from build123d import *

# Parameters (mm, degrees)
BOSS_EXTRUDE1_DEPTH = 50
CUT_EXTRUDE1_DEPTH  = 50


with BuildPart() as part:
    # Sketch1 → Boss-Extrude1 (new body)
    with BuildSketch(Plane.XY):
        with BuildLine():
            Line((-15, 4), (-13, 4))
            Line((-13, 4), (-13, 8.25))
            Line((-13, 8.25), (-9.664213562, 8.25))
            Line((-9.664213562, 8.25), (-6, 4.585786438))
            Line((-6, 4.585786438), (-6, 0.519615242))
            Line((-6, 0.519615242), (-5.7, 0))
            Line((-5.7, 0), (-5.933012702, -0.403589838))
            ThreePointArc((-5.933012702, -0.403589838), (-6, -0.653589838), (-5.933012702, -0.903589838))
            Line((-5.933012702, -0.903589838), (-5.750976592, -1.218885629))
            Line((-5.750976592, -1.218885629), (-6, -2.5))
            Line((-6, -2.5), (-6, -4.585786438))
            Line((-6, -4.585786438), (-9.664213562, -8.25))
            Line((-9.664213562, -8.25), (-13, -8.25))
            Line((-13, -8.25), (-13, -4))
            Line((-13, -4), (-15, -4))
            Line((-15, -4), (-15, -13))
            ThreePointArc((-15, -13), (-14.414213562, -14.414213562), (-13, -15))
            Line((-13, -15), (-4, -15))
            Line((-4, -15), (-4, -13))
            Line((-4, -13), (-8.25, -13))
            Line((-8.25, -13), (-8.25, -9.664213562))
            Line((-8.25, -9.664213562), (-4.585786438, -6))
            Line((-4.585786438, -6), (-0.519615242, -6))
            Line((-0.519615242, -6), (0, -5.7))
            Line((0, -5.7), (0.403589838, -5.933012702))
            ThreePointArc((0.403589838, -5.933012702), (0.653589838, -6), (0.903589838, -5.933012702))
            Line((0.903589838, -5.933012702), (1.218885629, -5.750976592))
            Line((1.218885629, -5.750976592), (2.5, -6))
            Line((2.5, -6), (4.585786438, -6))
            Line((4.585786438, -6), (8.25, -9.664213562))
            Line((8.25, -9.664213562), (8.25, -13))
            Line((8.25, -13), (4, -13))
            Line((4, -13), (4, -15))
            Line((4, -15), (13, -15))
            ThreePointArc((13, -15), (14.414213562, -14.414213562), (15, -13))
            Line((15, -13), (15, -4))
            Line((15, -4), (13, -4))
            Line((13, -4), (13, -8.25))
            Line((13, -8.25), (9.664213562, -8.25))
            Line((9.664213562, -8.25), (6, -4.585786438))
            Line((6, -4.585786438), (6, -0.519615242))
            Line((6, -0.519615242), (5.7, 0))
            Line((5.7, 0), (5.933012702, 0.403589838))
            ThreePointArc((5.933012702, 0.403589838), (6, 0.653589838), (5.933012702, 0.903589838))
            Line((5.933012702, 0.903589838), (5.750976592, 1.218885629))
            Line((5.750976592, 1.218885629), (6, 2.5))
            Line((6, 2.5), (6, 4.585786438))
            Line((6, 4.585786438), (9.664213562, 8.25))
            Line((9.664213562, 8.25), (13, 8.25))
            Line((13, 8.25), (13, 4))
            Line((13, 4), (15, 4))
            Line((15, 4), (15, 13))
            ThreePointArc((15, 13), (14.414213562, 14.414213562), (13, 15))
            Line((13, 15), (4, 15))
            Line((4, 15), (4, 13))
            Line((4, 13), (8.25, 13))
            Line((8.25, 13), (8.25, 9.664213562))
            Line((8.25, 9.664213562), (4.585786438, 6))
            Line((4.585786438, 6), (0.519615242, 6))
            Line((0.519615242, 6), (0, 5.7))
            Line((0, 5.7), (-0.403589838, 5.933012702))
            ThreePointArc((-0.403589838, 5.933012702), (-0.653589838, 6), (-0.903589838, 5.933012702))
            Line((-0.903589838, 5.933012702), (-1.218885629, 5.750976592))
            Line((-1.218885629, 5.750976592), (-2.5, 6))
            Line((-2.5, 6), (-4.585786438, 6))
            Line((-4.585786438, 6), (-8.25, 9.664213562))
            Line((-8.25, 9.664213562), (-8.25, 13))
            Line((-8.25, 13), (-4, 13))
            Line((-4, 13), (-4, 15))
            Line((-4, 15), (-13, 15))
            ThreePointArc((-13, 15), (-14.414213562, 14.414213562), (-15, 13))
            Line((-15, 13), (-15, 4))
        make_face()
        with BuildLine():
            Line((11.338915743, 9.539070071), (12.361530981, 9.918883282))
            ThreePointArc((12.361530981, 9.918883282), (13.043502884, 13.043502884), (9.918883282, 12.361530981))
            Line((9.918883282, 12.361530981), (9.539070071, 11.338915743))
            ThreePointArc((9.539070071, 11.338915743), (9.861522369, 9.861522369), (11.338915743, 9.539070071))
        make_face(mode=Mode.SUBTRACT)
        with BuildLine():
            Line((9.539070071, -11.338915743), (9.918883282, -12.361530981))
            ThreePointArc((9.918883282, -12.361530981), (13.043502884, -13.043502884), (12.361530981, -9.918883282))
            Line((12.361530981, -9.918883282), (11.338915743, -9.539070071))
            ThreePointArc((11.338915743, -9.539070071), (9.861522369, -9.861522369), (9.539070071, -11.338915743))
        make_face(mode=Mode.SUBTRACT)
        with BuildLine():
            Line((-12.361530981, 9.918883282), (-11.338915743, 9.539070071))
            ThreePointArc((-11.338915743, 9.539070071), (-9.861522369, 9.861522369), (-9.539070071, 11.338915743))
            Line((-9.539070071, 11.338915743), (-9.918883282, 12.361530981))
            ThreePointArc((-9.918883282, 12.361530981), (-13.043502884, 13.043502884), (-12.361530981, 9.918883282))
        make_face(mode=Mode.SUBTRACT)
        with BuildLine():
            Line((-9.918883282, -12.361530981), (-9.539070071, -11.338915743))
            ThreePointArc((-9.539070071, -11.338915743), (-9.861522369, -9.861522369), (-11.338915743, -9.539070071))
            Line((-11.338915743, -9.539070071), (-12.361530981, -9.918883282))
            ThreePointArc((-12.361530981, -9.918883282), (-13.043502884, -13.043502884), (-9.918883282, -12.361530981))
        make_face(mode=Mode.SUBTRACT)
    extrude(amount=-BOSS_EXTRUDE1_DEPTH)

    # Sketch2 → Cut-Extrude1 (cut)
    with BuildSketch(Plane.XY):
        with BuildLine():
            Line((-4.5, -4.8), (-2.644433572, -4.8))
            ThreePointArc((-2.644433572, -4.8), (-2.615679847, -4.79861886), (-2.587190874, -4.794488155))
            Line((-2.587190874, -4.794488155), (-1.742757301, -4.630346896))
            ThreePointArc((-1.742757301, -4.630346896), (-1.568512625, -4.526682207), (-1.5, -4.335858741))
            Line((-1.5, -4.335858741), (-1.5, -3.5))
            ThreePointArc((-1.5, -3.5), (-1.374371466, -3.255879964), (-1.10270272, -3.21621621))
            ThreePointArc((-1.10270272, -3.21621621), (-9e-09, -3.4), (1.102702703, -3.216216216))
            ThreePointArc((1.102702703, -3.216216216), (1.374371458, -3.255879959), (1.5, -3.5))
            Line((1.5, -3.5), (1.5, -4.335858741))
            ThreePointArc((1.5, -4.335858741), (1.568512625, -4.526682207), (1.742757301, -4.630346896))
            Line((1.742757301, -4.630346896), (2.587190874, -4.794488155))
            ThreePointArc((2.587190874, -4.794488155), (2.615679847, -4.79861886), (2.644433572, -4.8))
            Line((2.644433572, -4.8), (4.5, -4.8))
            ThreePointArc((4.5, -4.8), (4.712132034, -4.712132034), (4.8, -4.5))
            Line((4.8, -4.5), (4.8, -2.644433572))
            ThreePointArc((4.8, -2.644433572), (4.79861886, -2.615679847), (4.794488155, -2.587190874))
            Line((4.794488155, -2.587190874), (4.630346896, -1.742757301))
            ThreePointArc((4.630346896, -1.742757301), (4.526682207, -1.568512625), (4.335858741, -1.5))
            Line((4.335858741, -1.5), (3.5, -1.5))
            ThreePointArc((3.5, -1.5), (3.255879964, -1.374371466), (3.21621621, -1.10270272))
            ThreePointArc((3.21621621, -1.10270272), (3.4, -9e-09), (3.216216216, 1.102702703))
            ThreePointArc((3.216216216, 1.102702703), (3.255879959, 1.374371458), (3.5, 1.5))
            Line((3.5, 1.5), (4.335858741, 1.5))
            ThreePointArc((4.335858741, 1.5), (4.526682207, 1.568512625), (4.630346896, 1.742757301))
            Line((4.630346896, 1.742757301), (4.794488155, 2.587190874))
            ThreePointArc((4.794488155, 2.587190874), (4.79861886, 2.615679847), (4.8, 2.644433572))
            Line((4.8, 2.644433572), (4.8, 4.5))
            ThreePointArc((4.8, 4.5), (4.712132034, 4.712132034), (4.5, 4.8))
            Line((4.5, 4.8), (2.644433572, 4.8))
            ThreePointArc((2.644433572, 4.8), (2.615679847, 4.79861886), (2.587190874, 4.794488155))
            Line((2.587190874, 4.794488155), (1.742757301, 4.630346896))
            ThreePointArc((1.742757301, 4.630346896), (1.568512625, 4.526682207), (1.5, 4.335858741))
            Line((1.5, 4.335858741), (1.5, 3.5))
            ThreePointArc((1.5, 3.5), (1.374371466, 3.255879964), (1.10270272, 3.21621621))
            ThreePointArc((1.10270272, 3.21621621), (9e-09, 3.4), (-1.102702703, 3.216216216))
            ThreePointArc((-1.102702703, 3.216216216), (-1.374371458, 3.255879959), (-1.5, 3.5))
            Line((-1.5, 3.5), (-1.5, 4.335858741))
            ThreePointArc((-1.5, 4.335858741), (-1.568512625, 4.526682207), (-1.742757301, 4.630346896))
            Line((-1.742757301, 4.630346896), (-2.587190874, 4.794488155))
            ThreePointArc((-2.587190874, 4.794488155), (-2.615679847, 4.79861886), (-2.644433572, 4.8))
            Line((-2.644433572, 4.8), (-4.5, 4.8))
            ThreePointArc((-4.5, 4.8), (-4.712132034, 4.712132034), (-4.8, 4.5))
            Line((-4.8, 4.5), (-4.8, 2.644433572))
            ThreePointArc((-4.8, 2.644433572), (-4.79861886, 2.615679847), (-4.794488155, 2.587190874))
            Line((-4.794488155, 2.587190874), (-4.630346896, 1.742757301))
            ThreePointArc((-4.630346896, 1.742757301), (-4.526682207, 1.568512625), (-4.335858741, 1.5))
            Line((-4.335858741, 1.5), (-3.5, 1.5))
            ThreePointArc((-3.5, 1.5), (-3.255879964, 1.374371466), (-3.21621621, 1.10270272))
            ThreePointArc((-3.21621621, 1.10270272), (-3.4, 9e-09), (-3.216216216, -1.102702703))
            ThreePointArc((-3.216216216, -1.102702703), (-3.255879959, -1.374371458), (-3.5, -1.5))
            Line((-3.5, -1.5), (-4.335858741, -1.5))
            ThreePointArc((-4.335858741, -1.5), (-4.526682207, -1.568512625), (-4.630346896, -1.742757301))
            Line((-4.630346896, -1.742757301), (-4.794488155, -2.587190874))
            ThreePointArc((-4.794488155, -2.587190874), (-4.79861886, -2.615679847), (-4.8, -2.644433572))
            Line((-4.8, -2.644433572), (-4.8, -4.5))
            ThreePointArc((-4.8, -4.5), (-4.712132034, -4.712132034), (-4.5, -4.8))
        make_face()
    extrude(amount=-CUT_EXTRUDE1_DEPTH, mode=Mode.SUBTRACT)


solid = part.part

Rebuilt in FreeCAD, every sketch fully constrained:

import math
import FreeCAD as App
import Part
import Sketcher

V = App.Vector
Q = App.Units.Quantity

doc = App.newDocument("Part")
body = doc.addObject("PartDesign::Body", "Body")

# Sketch on XY plane
sketch1 = doc.addObject("Sketcher::SketchObject", "Sketch")
body.addObject(sketch1)
sketch1.AttachmentSupport = (doc.XY_Plane, [""])
sketch1.MapMode = "FlatFace"
sketch1.addGeometry([
    Part.LineSegment(V(-15, 4, 0), V(-13, 4, 0)),  # 0
    Part.LineSegment(V(-13, 4, 0), V(-13, 8.25, 0)),  # 1
    Part.LineSegment(V(-13, 8.25, 0), V(-9.66, 8.25, 0)),  # 2
    Part.LineSegment(V(-9.66, 8.25, 0), V(-6, 4.59, 0)),  # 3
    Part.LineSegment(V(-6, 4.59, 0), V(-6, 0.52, 0)),  # 4
    Part.LineSegment(V(-6, 0.52, 0), V(-5.7, 0, 0)),  # 5
    Part.LineSegment(V(-5.7, 0, 0), V(-5.93, -0.4, 0)),  # 6
    Part.ArcOfCircle(Part.Circle(V(-5.5, -0.65, 0), V(0, 0, 1), 0.5), math.radians(150), math.radians(210)),  # 7
    Part.LineSegment(V(-5.93, -0.9, 0), V(-5.75, -1.22, 0)),  # 8
    Part.LineSegment(V(-5.75, -1.22, 0), V(-6, -2.5, 0)),  # 9
    Part.LineSegment(V(-6, -2.5, 0), V(-6, -4.59, 0)),  # 10
    Part.LineSegment(V(-6, -4.59, 0), V(-9.66, -8.25, 0)),  # 11
    Part.LineSegment(V(-9.66, -8.25, 0), V(-13, -8.25, 0)),  # 12
    Part.LineSegment(V(-13, -8.25, 0), V(-13, -4, 0)),  # 13
    Part.LineSegment(V(-13, -4, 0), V(-15, -4, 0)),  # 14
    Part.LineSegment(V(-15, -4, 0), V(-15, -13, 0)),  # 15
    Part.ArcOfCircle(Part.Circle(V(-13, -13, 0), V(0, 0, 1), 2), math.radians(-180), math.radians(-90)),  # 16
    Part.LineSegment(V(-13, -15, 0), V(-4, -15, 0)),  # 17
    Part.LineSegment(V(-4, -15, 0), V(-4, -13, 0)),  # 18
    Part.LineSegment(V(-4, -13, 0), V(-8.25, -13, 0)),  # 19
    Part.LineSegment(V(-8.25, -13, 0), V(-8.25, -9.66, 0)),  # 20
    Part.LineSegment(V(-8.25, -9.66, 0), V(-4.59, -6, 0)),  # 21
    Part.LineSegment(V(-4.59, -6, 0), V(-0.52, -6, 0)),  # 22
    Part.LineSegment(V(-0.52, -6, 0), V(0, -5.7, 0)),  # 23
    Part.LineSegment(V(0, -5.7, 0), V(0.4, -5.93, 0)),  # 24
    Part.ArcOfCircle(Part.Circle(V(0.65, -5.5, 0), V(0, 0, 1), 0.5), math.radians(-120), math.radians(-60)),  # 25
    Part.LineSegment(V(0.9, -5.93, 0), V(1.22, -5.75, 0)),  # 26
    Part.LineSegment(V(1.22, -5.75, 0), V(2.5, -6, 0)),  # 27
    Part.LineSegment(V(2.5, -6, 0), V(4.59, -6, 0)),  # 28
    Part.LineSegment(V(4.59, -6, 0), V(8.25, -9.66, 0)),  # 29
    Part.LineSegment(V(8.25, -9.66, 0), V(8.25, -13, 0)),  # 30
    Part.LineSegment(V(8.25, -13, 0), V(4, -13, 0)),  # 31
    Part.LineSegment(V(4, -13, 0), V(4, -15, 0)),  # 32
    Part.LineSegment(V(4, -15, 0), V(13, -15, 0)),  # 33
    Part.ArcOfCircle(Part.Circle(V(13, -13, 0), V(0, 0, 1), 2), math.radians(-90), math.radians(0)),  # 34
    Part.LineSegment(V(15, -13, 0), V(15, -4, 0)),  # 35
    Part.LineSegment(V(15, -4, 0), V(13, -4, 0)),  # 36
    Part.LineSegment(V(13, -4, 0), V(13, -8.25, 0)),  # 37
    Part.LineSegment(V(13, -8.25, 0), V(9.66, -8.25, 0)),  # 38
    Part.LineSegment(V(9.66, -8.25, 0), V(6, -4.59, 0)),  # 39
    Part.LineSegment(V(6, -4.59, 0), V(6, -0.52, 0)),  # 40
    Part.LineSegment(V(6, -0.52, 0), V(5.7, 0, 0)),  # 41
    Part.LineSegment(V(5.7, 0, 0), V(5.93, 0.4, 0)),  # 42
    Part.ArcOfCircle(Part.Circle(V(5.5, 0.65, 0), V(0, 0, 1), 0.5), math.radians(-30), math.radians(30)),  # 43
    Part.LineSegment(V(5.93, 0.9, 0), V(5.75, 1.22, 0)),  # 44
    Part.LineSegment(V(5.75, 1.22, 0), V(6, 2.5, 0)),  # 45
    Part.LineSegment(V(6, 2.5, 0), V(6, 4.59, 0)),  # 46
    Part.LineSegment(V(6, 4.59, 0), V(9.66, 8.25, 0)),  # 47
    Part.LineSegment(V(9.66, 8.25, 0), V(13, 8.25, 0)),  # 48
    Part.LineSegment(V(13, 8.25, 0), V(13, 4, 0)),  # 49
    Part.LineSegment(V(13, 4, 0), V(15, 4, 0)),  # 50
    Part.LineSegment(V(15, 4, 0), V(15, 13, 0)),  # 51
    Part.ArcOfCircle(Part.Circle(V(13, 13, 0), V(0, 0, 1), 2), math.radians(0), math.radians(90)),  # 52
    Part.LineSegment(V(13, 15, 0), V(4, 15, 0)),  # 53
    Part.LineSegment(V(4, 15, 0), V(4, 13, 0)),  # 54
    Part.LineSegment(V(4, 13, 0), V(8.25, 13, 0)),  # 55
    Part.LineSegment(V(8.25, 13, 0), V(8.25, 9.66, 0)),  # 56
    Part.LineSegment(V(8.25, 9.66, 0), V(4.59, 6, 0)),  # 57
    Part.LineSegment(V(4.59, 6, 0), V(0.52, 6, 0)),  # 58
    Part.LineSegment(V(0.52, 6, 0), V(0, 5.7, 0)),  # 59
    Part.LineSegment(V(0, 5.7, 0), V(-0.4, 5.93, 0)),  # 60
    Part.ArcOfCircle(Part.Circle(V(-0.65, 5.5, 0), V(0, 0, 1), 0.5), math.radians(60), math.radians(120)),  # 61
    Part.LineSegment(V(-0.9, 5.93, 0), V(-1.22, 5.75, 0)),  # 62
    Part.LineSegment(V(-1.22, 5.75, 0), V(-2.5, 6, 0)),  # 63
    Part.LineSegment(V(-2.5, 6, 0), V(-4.59, 6, 0)),  # 64
    Part.LineSegment(V(-4.59, 6, 0), V(-8.25, 9.66, 0)),  # 65
    Part.LineSegment(V(-8.25, 9.66, 0), V(-8.25, 13, 0)),  # 66
    Part.LineSegment(V(-8.25, 13, 0), V(-4, 13, 0)),  # 67
    Part.LineSegment(V(-4, 13, 0), V(-4, 15, 0)),  # 68
    Part.LineSegment(V(-4, 15, 0), V(-13, 15, 0)),  # 69
    Part.ArcOfCircle(Part.Circle(V(-13, 13, 0), V(0, 0, 1), 2), math.radians(90), math.radians(180)),  # 70
    Part.LineSegment(V(-15, 13, 0), V(-15, 4, 0)),  # 71
    Part.LineSegment(V(-9.54, -11.34, 0), V(-9.92, -12.36, 0)),  # 72
    Part.ArcOfCircle(Part.Circle(V(-11.7, -11.7, 0), V(0, 0, 1), 1.9), math.radians(110), math.radians(340)),  # 73
    Part.LineSegment(V(-12.36, -9.92, 0), V(-11.34, -9.54, 0)),  # 74
    Part.ArcOfCircle(Part.Circle(V(-10.85, -10.85, 0), V(0, 0, 1), 1.4), math.radians(-20), math.radians(110)),  # 75
    Part.LineSegment(V(9.92, -12.36, 0), V(9.54, -11.34, 0)),  # 76
    Part.ArcOfCircle(Part.Circle(V(10.85, -10.85, 0), V(0, 0, 1), 1.4), math.radians(70), math.radians(200)),  # 77
    Part.LineSegment(V(11.34, -9.54, 0), V(12.36, -9.92, 0)),  # 78
    Part.ArcOfCircle(Part.Circle(V(11.7, -11.7, 0), V(0, 0, 1), 1.9), math.radians(-160), math.radians(70)),  # 79
    Part.LineSegment(V(-11.34, 9.54, 0), V(-12.36, 9.92, 0)),  # 80
    Part.ArcOfCircle(Part.Circle(V(-11.7, 11.7, 0), V(0, 0, 1), 1.9), math.radians(20), math.radians(250)),  # 81
    Part.LineSegment(V(-9.92, 12.36, 0), V(-9.54, 11.34, 0)),  # 82
    Part.ArcOfCircle(Part.Circle(V(-10.85, 10.85, 0), V(0, 0, 1), 1.4), math.radians(-110), math.radians(20)),  # 83
    Part.LineSegment(V(12.36, 9.92, 0), V(11.34, 9.54, 0)),  # 84
    Part.ArcOfCircle(Part.Circle(V(10.85, 10.85, 0), V(0, 0, 1), 1.4), math.radians(160), math.radians(290)),  # 85
    Part.LineSegment(V(9.54, 11.34, 0), V(9.92, 12.36, 0)),  # 86
    Part.ArcOfCircle(Part.Circle(V(11.7, 11.7, 0), V(0, 0, 1), 1.9), math.radians(-70), math.radians(160)),  # 87
], False)
sketch1.addConstraint([
    Sketcher.Constraint("Coincident", 0, 2, 1, 1),
    Sketcher.Constraint("Coincident", 1, 2, 2, 1),
    Sketcher.Constraint("Coincident", 2, 2, 3, 1),
    Sketcher.Constraint("Coincident", 3, 2, 4, 1),
    Sketcher.Constraint("Coincident", 4, 2, 5, 1),
    Sketcher.Constraint("Coincident", 5, 2, 6, 1),
    Sketcher.Constraint("Tangent", 6, 2, 7, 1),
    Sketcher.Constraint("Tangent", 7, 2, 8, 1),
    Sketcher.Constraint("Coincident", 8, 2, 9, 1),
    Sketcher.Constraint("Coincident", 9, 2, 10, 1),
    Sketcher.Constraint("Coincident", 10, 2, 11, 1),
    Sketcher.Constraint("Coincident", 11, 2, 12, 1),
    Sketcher.Constraint("Coincident", 12, 2, 13, 1),
    Sketcher.Constraint("Coincident", 13, 2, 14, 1),
    Sketcher.Constraint("Coincident", 14, 2, 15, 1),
    Sketcher.Constraint("Tangent", 15, 2, 16, 1),
    Sketcher.Constraint("Tangent", 16, 2, 17, 1),
    Sketcher.Constraint("Coincident", 17, 2, 18, 1),
    Sketcher.Constraint("Coincident", 18, 2, 19, 1),
    Sketcher.Constraint("Coincident", 19, 2, 20, 1),
    Sketcher.Constraint("Coincident", 20, 2, 21, 1),
    Sketcher.Constraint("Coincident", 21, 2, 22, 1),
    Sketcher.Constraint("Coincident", 22, 2, 23, 1),
    Sketcher.Constraint("Coincident", 23, 2, 24, 1),
    Sketcher.Constraint("Tangent", 24, 2, 25, 1),
    Sketcher.Constraint("Tangent", 25, 2, 26, 1),
    Sketcher.Constraint("Coincident", 26, 2, 27, 1),
    Sketcher.Constraint("Coincident", 27, 2, 28, 1),
    Sketcher.Constraint("Coincident", 28, 2, 29, 1),
    Sketcher.Constraint("Coincident", 29, 2, 30, 1),
    Sketcher.Constraint("Coincident", 30, 2, 31, 1),
    Sketcher.Constraint("Coincident", 31, 2, 32, 1),
    Sketcher.Constraint("Coincident", 32, 2, 33, 1),
    Sketcher.Constraint("Tangent", 33, 2, 34, 1),
    Sketcher.Constraint("Tangent", 34, 2, 35, 1),
    Sketcher.Constraint("Coincident", 35, 2, 36, 1),
    Sketcher.Constraint("Coincident", 36, 2, 37, 1),
    Sketcher.Constraint("Coincident", 37, 2, 38, 1),
    Sketcher.Constraint("Coincident", 38, 2, 39, 1),
    Sketcher.Constraint("Coincident", 39, 2, 40, 1),
    Sketcher.Constraint("Coincident", 40, 2, 41, 1),
    Sketcher.Constraint("Coincident", 41, 2, 42, 1),
    Sketcher.Constraint("Tangent", 42, 2, 43, 1),
    Sketcher.Constraint("Tangent", 43, 2, 44, 1),
    Sketcher.Constraint("Coincident", 44, 2, 45, 1),
    Sketcher.Constraint("Coincident", 45, 2, 46, 1),
    Sketcher.Constraint("Coincident", 46, 2, 47, 1),
    Sketcher.Constraint("Coincident", 47, 2, 48, 1),
    Sketcher.Constraint("Coincident", 48, 2, 49, 1),
    Sketcher.Constraint("Coincident", 49, 2, 50, 1),
    Sketcher.Constraint("Coincident", 50, 2, 51, 1),
    Sketcher.Constraint("Tangent", 51, 2, 52, 1),
    Sketcher.Constraint("Tangent", 52, 2, 53, 1),
    Sketcher.Constraint("Coincident", 53, 2, 54, 1),
    Sketcher.Constraint("Coincident", 54, 2, 55, 1),
    Sketcher.Constraint("Coincident", 55, 2, 56, 1),
    Sketcher.Constraint("Coincident", 56, 2, 57, 1),
    Sketcher.Constraint("Coincident", 57, 2, 58, 1),
    Sketcher.Constraint("Coincident", 58, 2, 59, 1),
    Sketcher.Constraint("Coincident", 59, 2, 60, 1),
    Sketcher.Constraint("Tangent", 60, 2, 61, 1),
    Sketcher.Constraint("Tangent", 61, 2, 62, 1),
    Sketcher.Constraint("Coincident", 62, 2, 63, 1),
    Sketcher.Constraint("Coincident", 63, 2, 64, 1),
    Sketcher.Constraint("Coincident", 64, 2, 65, 1),
    Sketcher.Constraint("Coincident", 65, 2, 66, 1),
    Sketcher.Constraint("Coincident", 66, 2, 67, 1),
    Sketcher.Constraint("Coincident", 67, 2, 68, 1),
    Sketcher.Constraint("Coincident", 68, 2, 69, 1),
    Sketcher.Constraint("Tangent", 69, 2, 70, 1),
    Sketcher.Constraint("Tangent", 70, 2, 71, 1),
    Sketcher.Constraint("Coincident", 71, 2, 0, 1),
    Sketcher.Constraint("Tangent", 72, 2, 73, 2),
    Sketcher.Constraint("Tangent", 73, 1, 74, 1),
    Sketcher.Constraint("Tangent", 74, 2, 75, 2),
    Sketcher.Constraint("Tangent", 75, 1, 72, 1),
    Sketcher.Constraint("Tangent", 76, 2, 77, 2),
    Sketcher.Constraint("Tangent", 77, 1, 78, 1),
    Sketcher.Constraint("Tangent", 78, 2, 79, 2),
    Sketcher.Constraint("Tangent", 79, 1, 76, 1),
    Sketcher.Constraint("Tangent", 80, 2, 81, 2),
    Sketcher.Constraint("Tangent", 81, 1, 82, 1),
    Sketcher.Constraint("Tangent", 82, 2, 83, 2),
    Sketcher.Constraint("Tangent", 83, 1, 80, 1),
    Sketcher.Constraint("Tangent", 84, 2, 85, 2),
    Sketcher.Constraint("Tangent", 85, 1, 86, 1),
    Sketcher.Constraint("Tangent", 86, 2, 87, 2),
    Sketcher.Constraint("Tangent", 87, 1, 84, 1),
    Sketcher.Constraint("Horizontal", 0),
    Sketcher.Constraint("Vertical", 1),
    Sketcher.Constraint("Horizontal", 2),
    Sketcher.Constraint("Vertical", 4),
    Sketcher.Constraint("Vertical", 10),
    Sketcher.Constraint("Horizontal", 12),
    Sketcher.Constraint("Vertical", 13),
    Sketcher.Constraint("Horizontal", 14),
    Sketcher.Constraint("Vertical", 15),
    Sketcher.Constraint("Horizontal", 17),
    Sketcher.Constraint("Vertical", 18),
    Sketcher.Constraint("Horizontal", 19),
    Sketcher.Constraint("Vertical", 20),
    Sketcher.Constraint("Horizontal", 22),
    Sketcher.Constraint("Horizontal", 28),
    Sketcher.Constraint("Vertical", 30),
    Sketcher.Constraint("Horizontal", 31),
    Sketcher.Constraint("Vertical", 32),
    Sketcher.Constraint("Horizontal", 33),
    Sketcher.Constraint("Vertical", 35),
    Sketcher.Constraint("Horizontal", 36),
    Sketcher.Constraint("Vertical", 37),
    Sketcher.Constraint("Horizontal", 38),
    Sketcher.Constraint("Vertical", 40),
    Sketcher.Constraint("Vertical", 46),
    Sketcher.Constraint("Horizontal", 48),
    Sketcher.Constraint("Vertical", 49),
    Sketcher.Constraint("Horizontal", 50),
    Sketcher.Constraint("Vertical", 51),
    Sketcher.Constraint("Horizontal", 53),
    Sketcher.Constraint("Vertical", 54),
    Sketcher.Constraint("Horizontal", 55),
    Sketcher.Constraint("Vertical", 56),
    Sketcher.Constraint("Horizontal", 58),
    Sketcher.Constraint("Horizontal", 64),
    Sketcher.Constraint("Vertical", 66),
    Sketcher.Constraint("Horizontal", 67),
    Sketcher.Constraint("Vertical", 68),
    Sketcher.Constraint("Horizontal", 69),
    Sketcher.Constraint("Vertical", 71),
    Sketcher.Constraint("Equal", 7, 25),
    Sketcher.Constraint("Equal", 16, 34),
    Sketcher.Constraint("Equal", 25, 43),
    Sketcher.Constraint("Equal", 34, 52),
    Sketcher.Constraint("Equal", 43, 61),
    Sketcher.Constraint("Equal", 52, 70),
    Sketcher.Constraint("Equal", 75, 77),
    Sketcher.Constraint("Equal", 73, 79),
    Sketcher.Constraint("Equal", 79, 81),
    Sketcher.Constraint("Equal", 77, 83),
    Sketcher.Constraint("Equal", 83, 85),
    Sketcher.Constraint("Equal", 81, 87),
    Sketcher.Constraint("Symmetric", 7, 3, 43, 3, -1, 1),
    Sketcher.Constraint("Symmetric", 16, 3, 52, 3, -1, 1),
    Sketcher.Constraint("Symmetric", 25, 3, 61, 3, -1, 1),
    Sketcher.Constraint("Symmetric", 34, 3, 70, 3, -1, 1),
    Sketcher.Constraint("Symmetric", 79, 3, 81, 3, -1, 1),
    Sketcher.Constraint("Symmetric", 77, 3, 83, 3, -1, 1),
    Sketcher.Constraint("Symmetric", 75, 3, 85, 3, -1, 1),
    Sketcher.Constraint("Symmetric", 73, 3, 87, 3, -1, 1),
    Sketcher.Constraint("Symmetric", 0, 2, 36, 2, -1, 1),
    Sketcher.Constraint("Symmetric", 2, 2, 38, 2, -1, 1),
    Sketcher.Constraint("Symmetric", 3, 2, 39, 2, -1, 1),
    Sketcher.Constraint("Symmetric", 5, 2, 41, 2, -1, 1),
    Sketcher.Constraint("Symmetric", 8, 2, 44, 2, -1, 1),
    Sketcher.Constraint("Symmetric", 9, 2, 45, 2, -1, 1),
    Sketcher.Constraint("Symmetric", 11, 2, 47, 2, -1, 1),
    Sketcher.Constraint("Symmetric", 13, 2, 49, 2, -1, 1),
    Sketcher.Constraint("Symmetric", 18, 2, 54, 2, -1, 1),
    Sketcher.Constraint("Symmetric", 20, 2, 56, 2, -1, 1),
    Sketcher.Constraint("Symmetric", 21, 2, 57, 2, -1, 1),
    Sketcher.Constraint("Symmetric", 23, 2, 59, 2, -1, 1),
    Sketcher.Constraint("Symmetric", 26, 2, 62, 2, -1, 1),
    Sketcher.Constraint("Symmetric", 27, 2, 63, 2, -1, 1),
    Sketcher.Constraint("Symmetric", 29, 2, 65, 2, -1, 1),
    Sketcher.Constraint("Symmetric", 31, 2, 67, 2, -1, 1),
    Sketcher.Constraint("Symmetric", 16, 3, 34, 3, -2),
    Sketcher.Constraint("Symmetric", 75, 3, 77, 3, -2),
    Sketcher.Constraint("Symmetric", 73, 3, 79, 3, -2),
    Sketcher.Constraint("Symmetric", 21, 2, 28, 2, -2),
    Sketcher.Constraint("Symmetric", 20, 2, 29, 2, -2),
    Sketcher.Constraint("Symmetric", 18, 2, 31, 2, -2),
    Sketcher.Constraint("Symmetric", 13, 2, 36, 2, -2),
    Sketcher.Constraint("Symmetric", 11, 2, 38, 2, -2),
    Sketcher.Constraint("Symmetric", 10, 2, 39, 2, -2),
    Sketcher.Constraint("PointOnObject", 5, 2, -1),
    Sketcher.Constraint("PointOnObject", 23, 2, -2),
    Sketcher.Constraint("Parallel", 5, 8),
    Sketcher.Constraint("Perpendicular", 3, 11),
    Sketcher.Constraint("Parallel", 11, 21),
    Sketcher.Constraint("Perpendicular", 8, 23),
    Sketcher.Constraint("Perpendicular", 6, 24),
    Sketcher.Constraint("Parallel", 23, 26),
    Sketcher.Constraint("Perpendicular", 9, 27),
    Sketcher.Constraint("Perpendicular", 26, 41),
    Sketcher.Constraint("Perpendicular", 39, 47),
    Sketcher.Constraint("Perpendicular", 44, 59),
    Sketcher.Constraint("Perpendicular", 57, 65),
    Sketcher.Constraint("Perpendicular", 74, 76),
    Sketcher.Constraint("Horizontal", 15, 2, 18, 2),
    Sketcher.Constraint("Horizontal", 24, 2, 25, 2),
    Sketcher.Constraint("Vertical", 70, 3, 0, 2),
    Sketcher.Constraint("Equal", 67, 1),
    Sketcher.Constraint("Equal", 58, 4),
    Sketcher.Constraint("Equal", 64, 10),
    Sketcher.Constraint("Equal", 69, 15),
    Sketcher.Constraint("Equal", 48, 20),
    Sketcher.Constraint("Equal", 11, 21),
    Sketcher.Constraint("Equal", 5, 23),
    Sketcher.Constraint("Equal", 6, 24),
    Sketcher.Constraint("Radius", 16, 2.0),
    Sketcher.Constraint("Radius", 7, 0.5),
    Sketcher.Constraint("Radius", 73, 1.9),
    Sketcher.Constraint("Radius", 75, 1.4),
    Sketcher.Constraint("DistanceX", 17, 1, 17, 2, 9.0),
    Sketcher.Constraint("Angle", 5, Q("-60 deg")),
    Sketcher.Constraint("Angle", 9, Q("-101 deg")),
    Sketcher.Constraint("DistanceX", 16, 3, -1, 1, 13.0),
    Sketcher.Constraint("DistanceX", 3, 2, -1, 1, 6.0),
    Sketcher.Constraint("Distance", 5, 0.6),
    Sketcher.Constraint("DistanceX", 19, 2, 19, 1, 4.25),
    Sketcher.Constraint("DistanceX", 7, 3, -1, 1, 5.5),
    Sketcher.Constraint("DistanceX", 73, 3, -1, 1, 11.7),
    Sketcher.Constraint("DistanceY", 73, 3, -1, 1, 11.7),
    Sketcher.Constraint("DistanceY", 9, 2, -1, 1, 2.5),
    Sketcher.Constraint("DistanceX", 22, 1, 22, 2, 4.066171),
    Sketcher.Constraint("Distance", 72, 1.090871),
])
pad1 = doc.addObject("PartDesign::Pad", "Pad")
body.addObject(pad1)
pad1.Profile = sketch1
pad1.Length = 50
pad1.Reversed = True

# Sketch on XY plane
sketch2 = doc.addObject("Sketcher::SketchObject", "Sketch001")
body.addObject(sketch2)
sketch2.AttachmentSupport = (doc.XY_Plane, [""])
sketch2.MapMode = "FlatFace"
sketch2.addGeometry([
    Part.LineSegment(V(-4.5, -4.8, 0), V(-2.64, -4.8, 0)),  # 0
    Part.ArcOfCircle(Part.Circle(V(-2.64, -4.5, 0), V(0, 0, 1), 0.3), math.radians(-90), math.radians(-79)),  # 1
    Part.LineSegment(V(-2.59, -4.79, 0), V(-1.74, -4.63, 0)),  # 2
    Part.ArcOfCircle(Part.Circle(V(-1.8, -4.34, 0), V(0, 0, 1), 0.3), math.radians(-79), math.radians(0)),  # 3
    Part.LineSegment(V(-1.5, -4.34, 0), V(-1.5, -3.5, 0)),  # 4
    Part.ArcOfCircle(Part.Circle(V(-1.2, -3.5, 0), V(0, 0, 1), 0.3), math.radians(71), math.radians(180)),  # 5
    Part.ArcOfCircle(Part.Circle(V(0, 0, 0), V(0, 0, 1), 3.4), math.radians(-109), math.radians(-71)),  # 6
    Part.ArcOfCircle(Part.Circle(V(1.2, -3.5, 0), V(0, 0, 1), 0.3), math.radians(0), math.radians(109)),  # 7
    Part.LineSegment(V(1.5, -3.5, 0), V(1.5, -4.34, 0)),  # 8
    Part.ArcOfCircle(Part.Circle(V(1.8, -4.34, 0), V(0, 0, 1), 0.3), math.radians(180), math.radians(259)),  # 9
    Part.LineSegment(V(1.74, -4.63, 0), V(2.59, -4.79, 0)),  # 10
    Part.ArcOfCircle(Part.Circle(V(2.64, -4.5, 0), V(0, 0, 1), 0.3), math.radians(-101), math.radians(-90)),  # 11
    Part.LineSegment(V(2.64, -4.8, 0), V(4.5, -4.8, 0)),  # 12
    Part.ArcOfCircle(Part.Circle(V(4.5, -4.5, 0), V(0, 0, 1), 0.3), math.radians(-90), math.radians(0)),  # 13
    Part.LineSegment(V(4.8, -4.5, 0), V(4.8, -2.64, 0)),  # 14
    Part.ArcOfCircle(Part.Circle(V(4.5, -2.64, 0), V(0, 0, 1), 0.3), math.radians(0), math.radians(11)),  # 15
    Part.LineSegment(V(4.79, -2.59, 0), V(4.63, -1.74, 0)),  # 16
    Part.ArcOfCircle(Part.Circle(V(4.34, -1.8, 0), V(0, 0, 1), 0.3), math.radians(11), math.radians(90)),  # 17
    Part.LineSegment(V(4.34, -1.5, 0), V(3.5, -1.5, 0)),  # 18
    Part.ArcOfCircle(Part.Circle(V(3.5, -1.2, 0), V(0, 0, 1), 0.3), math.radians(161), math.radians(270)),  # 19
    Part.ArcOfCircle(Part.Circle(V(0, 0, 0), V(0, 0, 1), 3.4), math.radians(-19), math.radians(19)),  # 20
    Part.ArcOfCircle(Part.Circle(V(3.5, 1.2, 0), V(0, 0, 1), 0.3), math.radians(90), math.radians(199)),  # 21
    Part.LineSegment(V(3.5, 1.5, 0), V(4.34, 1.5, 0)),  # 22
    Part.ArcOfCircle(Part.Circle(V(4.34, 1.8, 0), V(0, 0, 1), 0.3), math.radians(-90), math.radians(-11)),  # 23
    Part.LineSegment(V(4.63, 1.74, 0), V(4.79, 2.59, 0)),  # 24
    Part.ArcOfCircle(Part.Circle(V(4.5, 2.64, 0), V(0, 0, 1), 0.3), math.radians(-11), math.radians(0)),  # 25
    Part.LineSegment(V(4.8, 2.64, 0), V(4.8, 4.5, 0)),  # 26
    Part.ArcOfCircle(Part.Circle(V(4.5, 4.5, 0), V(0, 0, 1), 0.3), math.radians(0), math.radians(90)),  # 27
    Part.LineSegment(V(4.5, 4.8, 0), V(2.64, 4.8, 0)),  # 28
    Part.ArcOfCircle(Part.Circle(V(2.64, 4.5, 0), V(0, 0, 1), 0.3), math.radians(90), math.radians(101)),  # 29
    Part.LineSegment(V(2.59, 4.79, 0), V(1.74, 4.63, 0)),  # 30
    Part.ArcOfCircle(Part.Circle(V(1.8, 4.34, 0), V(0, 0, 1), 0.3), math.radians(101), math.radians(180)),  # 31
    Part.LineSegment(V(1.5, 4.34, 0), V(1.5, 3.5, 0)),  # 32
    Part.ArcOfCircle(Part.Circle(V(1.2, 3.5, 0), V(0, 0, 1), 0.3), math.radians(-109), math.radians(0)),  # 33
    Part.ArcOfCircle(Part.Circle(V(0, 0, 0), V(0, 0, 1), 3.4), math.radians(71), math.radians(109)),  # 34
    Part.ArcOfCircle(Part.Circle(V(-1.2, 3.5, 0), V(0, 0, 1), 0.3), math.radians(-180), math.radians(-71)),  # 35
    Part.LineSegment(V(-1.5, 3.5, 0), V(-1.5, 4.34, 0)),  # 36
    Part.ArcOfCircle(Part.Circle(V(-1.8, 4.34, 0), V(0, 0, 1), 0.3), math.radians(0), math.radians(79)),  # 37
    Part.LineSegment(V(-1.74, 4.63, 0), V(-2.59, 4.79, 0)),  # 38
    Part.ArcOfCircle(Part.Circle(V(-2.64, 4.5, 0), V(0, 0, 1), 0.3), math.radians(79), math.radians(90)),  # 39
    Part.LineSegment(V(-2.64, 4.8, 0), V(-4.5, 4.8, 0)),  # 40
    Part.ArcOfCircle(Part.Circle(V(-4.5, 4.5, 0), V(0, 0, 1), 0.3), math.radians(90), math.radians(180)),  # 41
    Part.LineSegment(V(-4.8, 4.5, 0), V(-4.8, 2.64, 0)),  # 42
    Part.ArcOfCircle(Part.Circle(V(-4.5, 2.64, 0), V(0, 0, 1), 0.3), math.radians(180), math.radians(191)),  # 43
    Part.LineSegment(V(-4.79, 2.59, 0), V(-4.63, 1.74, 0)),  # 44
    Part.ArcOfCircle(Part.Circle(V(-4.34, 1.8, 0), V(0, 0, 1), 0.3), math.radians(-169), math.radians(-90)),  # 45
    Part.LineSegment(V(-4.34, 1.5, 0), V(-3.5, 1.5, 0)),  # 46
    Part.ArcOfCircle(Part.Circle(V(-3.5, 1.2, 0), V(0, 0, 1), 0.3), math.radians(-19), math.radians(90)),  # 47
    Part.ArcOfCircle(Part.Circle(V(0, 0, 0), V(0, 0, 1), 3.4), math.radians(161), math.radians(199)),  # 48
    Part.ArcOfCircle(Part.Circle(V(-3.5, -1.2, 0), V(0, 0, 1), 0.3), math.radians(-90), math.radians(19)),  # 49
    Part.LineSegment(V(-3.5, -1.5, 0), V(-4.34, -1.5, 0)),  # 50
    Part.ArcOfCircle(Part.Circle(V(-4.34, -1.8, 0), V(0, 0, 1), 0.3), math.radians(90), math.radians(169)),  # 51
    Part.LineSegment(V(-4.63, -1.74, 0), V(-4.79, -2.59, 0)),  # 52
    Part.ArcOfCircle(Part.Circle(V(-4.5, -2.64, 0), V(0, 0, 1), 0.3), math.radians(169), math.radians(180)),  # 53
    Part.LineSegment(V(-4.8, -2.64, 0), V(-4.8, -4.5, 0)),  # 54
    Part.ArcOfCircle(Part.Circle(V(-4.5, -4.5, 0), V(0, 0, 1), 0.3), math.radians(-180), math.radians(-90)),  # 55
], False)
sketch2.addConstraint([
    Sketcher.Constraint("Tangent", 0, 2, 1, 1),
    Sketcher.Constraint("Tangent", 1, 2, 2, 1),
    Sketcher.Constraint("Tangent", 2, 2, 3, 1),
    Sketcher.Constraint("Tangent", 3, 2, 4, 1),
    Sketcher.Constraint("Tangent", 4, 2, 5, 2),
    Sketcher.Constraint("Tangent", 5, 1, 6, 1),
    Sketcher.Constraint("Tangent", 6, 2, 7, 2),
    Sketcher.Constraint("Tangent", 7, 1, 8, 1),
    Sketcher.Constraint("Tangent", 8, 2, 9, 1),
    Sketcher.Constraint("Tangent", 9, 2, 10, 1),
    Sketcher.Constraint("Tangent", 10, 2, 11, 1),
    Sketcher.Constraint("Tangent", 11, 2, 12, 1),
    Sketcher.Constraint("Tangent", 12, 2, 13, 1),
    Sketcher.Constraint("Tangent", 13, 2, 14, 1),
    Sketcher.Constraint("Tangent", 14, 2, 15, 1),
    Sketcher.Constraint("Tangent", 15, 2, 16, 1),
    Sketcher.Constraint("Tangent", 16, 2, 17, 1),
    Sketcher.Constraint("Tangent", 17, 2, 18, 1),
    Sketcher.Constraint("Tangent", 18, 2, 19, 2),
    Sketcher.Constraint("Tangent", 19, 1, 20, 1),
    Sketcher.Constraint("Tangent", 20, 2, 21, 2),
    Sketcher.Constraint("Tangent", 21, 1, 22, 1),
    Sketcher.Constraint("Tangent", 22, 2, 23, 1),
    Sketcher.Constraint("Tangent", 23, 2, 24, 1),
    Sketcher.Constraint("Tangent", 24, 2, 25, 1),
    Sketcher.Constraint("Tangent", 25, 2, 26, 1),
    Sketcher.Constraint("Tangent", 26, 2, 27, 1),
    Sketcher.Constraint("Tangent", 27, 2, 28, 1),
    Sketcher.Constraint("Tangent", 28, 2, 29, 1),
    Sketcher.Constraint("Tangent", 29, 2, 30, 1),
    Sketcher.Constraint("Tangent", 30, 2, 31, 1),
    Sketcher.Constraint("Tangent", 31, 2, 32, 1),
    Sketcher.Constraint("Tangent", 32, 2, 33, 2),
    Sketcher.Constraint("Tangent", 33, 1, 34, 1),
    Sketcher.Constraint("Tangent", 34, 2, 35, 2),
    Sketcher.Constraint("Tangent", 35, 1, 36, 1),
    Sketcher.Constraint("Tangent", 36, 2, 37, 1),
    Sketcher.Constraint("Tangent", 37, 2, 38, 1),
    Sketcher.Constraint("Tangent", 38, 2, 39, 1),
    Sketcher.Constraint("Tangent", 39, 2, 40, 1),
    Sketcher.Constraint("Tangent", 40, 2, 41, 1),
    Sketcher.Constraint("Tangent", 41, 2, 42, 1),
    Sketcher.Constraint("Tangent", 42, 2, 43, 1),
    Sketcher.Constraint("Tangent", 43, 2, 44, 1),
    Sketcher.Constraint("Tangent", 44, 2, 45, 1),
    Sketcher.Constraint("Tangent", 45, 2, 46, 1),
    Sketcher.Constraint("Tangent", 46, 2, 47, 2),
    Sketcher.Constraint("Tangent", 47, 1, 48, 1),
    Sketcher.Constraint("Tangent", 48, 2, 49, 2),
    Sketcher.Constraint("Tangent", 49, 1, 50, 1),
    Sketcher.Constraint("Tangent", 50, 2, 51, 1),
    Sketcher.Constraint("Tangent", 51, 2, 52, 1),
    Sketcher.Constraint("Tangent", 52, 2, 53, 1),
    Sketcher.Constraint("Tangent", 53, 2, 54, 1),
    Sketcher.Constraint("Tangent", 54, 2, 55, 1),
    Sketcher.Constraint("Tangent", 55, 2, 0, 1),
    Sketcher.Constraint("Horizontal", 0),
    Sketcher.Constraint("Vertical", 4),
    Sketcher.Constraint("Vertical", 8),
    Sketcher.Constraint("Horizontal", 12),
    Sketcher.Constraint("Vertical", 14),
    Sketcher.Constraint("Horizontal", 18),
    Sketcher.Constraint("Horizontal", 22),
    Sketcher.Constraint("Vertical", 26),
    Sketcher.Constraint("Horizontal", 28),
    Sketcher.Constraint("Vertical", 32),
    Sketcher.Constraint("Vertical", 36),
    Sketcher.Constraint("Horizontal", 40),
    Sketcher.Constraint("Vertical", 42),
    Sketcher.Constraint("Horizontal", 46),
    Sketcher.Constraint("Horizontal", 50),
    Sketcher.Constraint("Vertical", 54),
    Sketcher.Constraint("Coincident", 6, 3, -1, 1),
    Sketcher.Constraint("Coincident", 20, 3, -1, 1),
    Sketcher.Constraint("Coincident", 34, 3, -1, 1),
    Sketcher.Constraint("Coincident", 48, 3, -1, 1),
    Sketcher.Constraint("Equal", 1, 3),
    Sketcher.Constraint("Equal", 3, 5),
    Sketcher.Constraint("Equal", 5, 7),
    Sketcher.Constraint("Equal", 7, 9),
    Sketcher.Constraint("Equal", 9, 11),
    Sketcher.Constraint("Equal", 11, 13),
    Sketcher.Constraint("Equal", 13, 15),
    Sketcher.Constraint("Equal", 15, 17),
    Sketcher.Constraint("Equal", 17, 19),
    Sketcher.Constraint("Equal", 6, 20),
    Sketcher.Constraint("Equal", 19, 21),
    Sketcher.Constraint("Equal", 21, 23),
    Sketcher.Constraint("Equal", 23, 25),
    Sketcher.Constraint("Equal", 25, 27),
    Sketcher.Constraint("Equal", 27, 29),
    Sketcher.Constraint("Equal", 29, 31),
    Sketcher.Constraint("Equal", 31, 33),
    Sketcher.Constraint("Equal", 20, 34),
    Sketcher.Constraint("Equal", 33, 35),
    Sketcher.Constraint("Equal", 35, 37),
    Sketcher.Constraint("Equal", 37, 39),
    Sketcher.Constraint("Equal", 39, 41),
    Sketcher.Constraint("Equal", 41, 43),
    Sketcher.Constraint("Equal", 43, 45),
    Sketcher.Constraint("Equal", 45, 47),
    Sketcher.Constraint("Equal", 34, 48),
    Sketcher.Constraint("Equal", 47, 49),
    Sketcher.Constraint("Equal", 49, 51),
    Sketcher.Constraint("Equal", 51, 53),
    Sketcher.Constraint("Equal", 53, 55),
    Sketcher.Constraint("Symmetric", 1, 3, 29, 3, -1, 1),
    Sketcher.Constraint("Symmetric", 3, 3, 31, 3, -1, 1),
    Sketcher.Constraint("Symmetric", 9, 3, 37, 3, -1, 1),
    Sketcher.Constraint("Symmetric", 11, 3, 39, 3, -1, 1),
    Sketcher.Constraint("Symmetric", 15, 3, 43, 3, -1, 1),
    Sketcher.Constraint("Symmetric", 17, 3, 45, 3, -1, 1),
    Sketcher.Constraint("Symmetric", 23, 3, 51, 3, -1, 1),
    Sketcher.Constraint("Symmetric", 25, 3, 53, 3, -1, 1),
    Sketcher.Constraint("Symmetric", 3, 3, 9, 3, -2),
    Sketcher.Constraint("Symmetric", 1, 3, 11, 3, -2),
    Sketcher.Constraint("Symmetric", 25, 3, 43, 3, -2),
    Sketcher.Constraint("Symmetric", 23, 3, 45, 3, -2),
    Sketcher.Constraint("Perpendicular", 2, 16),
    Sketcher.Constraint("Equal", 50, 4),
    Sketcher.Constraint("Equal", 40, 14),
    Sketcher.Constraint("Equal", 10, 16),
    Sketcher.Constraint("Radius", 1, 0.3),
    Sketcher.Constraint("Radius", 6, 3.4),
    Sketcher.Constraint("Angle", 2, Q("11 deg")),
    Sketcher.Constraint("DistanceY", 1, 3, -1, 1, 4.5),
    Sketcher.Constraint("DistanceX", 3, 3, -1, 1, 1.8),
    Sketcher.Constraint("DistanceX", 18, 2, 18, 1, 0.835859),
])
pocket1 = doc.addObject("PartDesign::Pocket", "Pocket")
body.addObject(pocket1)
pocket1.Profile = sketch2
pocket1.Length = 50

doc.recompute()
